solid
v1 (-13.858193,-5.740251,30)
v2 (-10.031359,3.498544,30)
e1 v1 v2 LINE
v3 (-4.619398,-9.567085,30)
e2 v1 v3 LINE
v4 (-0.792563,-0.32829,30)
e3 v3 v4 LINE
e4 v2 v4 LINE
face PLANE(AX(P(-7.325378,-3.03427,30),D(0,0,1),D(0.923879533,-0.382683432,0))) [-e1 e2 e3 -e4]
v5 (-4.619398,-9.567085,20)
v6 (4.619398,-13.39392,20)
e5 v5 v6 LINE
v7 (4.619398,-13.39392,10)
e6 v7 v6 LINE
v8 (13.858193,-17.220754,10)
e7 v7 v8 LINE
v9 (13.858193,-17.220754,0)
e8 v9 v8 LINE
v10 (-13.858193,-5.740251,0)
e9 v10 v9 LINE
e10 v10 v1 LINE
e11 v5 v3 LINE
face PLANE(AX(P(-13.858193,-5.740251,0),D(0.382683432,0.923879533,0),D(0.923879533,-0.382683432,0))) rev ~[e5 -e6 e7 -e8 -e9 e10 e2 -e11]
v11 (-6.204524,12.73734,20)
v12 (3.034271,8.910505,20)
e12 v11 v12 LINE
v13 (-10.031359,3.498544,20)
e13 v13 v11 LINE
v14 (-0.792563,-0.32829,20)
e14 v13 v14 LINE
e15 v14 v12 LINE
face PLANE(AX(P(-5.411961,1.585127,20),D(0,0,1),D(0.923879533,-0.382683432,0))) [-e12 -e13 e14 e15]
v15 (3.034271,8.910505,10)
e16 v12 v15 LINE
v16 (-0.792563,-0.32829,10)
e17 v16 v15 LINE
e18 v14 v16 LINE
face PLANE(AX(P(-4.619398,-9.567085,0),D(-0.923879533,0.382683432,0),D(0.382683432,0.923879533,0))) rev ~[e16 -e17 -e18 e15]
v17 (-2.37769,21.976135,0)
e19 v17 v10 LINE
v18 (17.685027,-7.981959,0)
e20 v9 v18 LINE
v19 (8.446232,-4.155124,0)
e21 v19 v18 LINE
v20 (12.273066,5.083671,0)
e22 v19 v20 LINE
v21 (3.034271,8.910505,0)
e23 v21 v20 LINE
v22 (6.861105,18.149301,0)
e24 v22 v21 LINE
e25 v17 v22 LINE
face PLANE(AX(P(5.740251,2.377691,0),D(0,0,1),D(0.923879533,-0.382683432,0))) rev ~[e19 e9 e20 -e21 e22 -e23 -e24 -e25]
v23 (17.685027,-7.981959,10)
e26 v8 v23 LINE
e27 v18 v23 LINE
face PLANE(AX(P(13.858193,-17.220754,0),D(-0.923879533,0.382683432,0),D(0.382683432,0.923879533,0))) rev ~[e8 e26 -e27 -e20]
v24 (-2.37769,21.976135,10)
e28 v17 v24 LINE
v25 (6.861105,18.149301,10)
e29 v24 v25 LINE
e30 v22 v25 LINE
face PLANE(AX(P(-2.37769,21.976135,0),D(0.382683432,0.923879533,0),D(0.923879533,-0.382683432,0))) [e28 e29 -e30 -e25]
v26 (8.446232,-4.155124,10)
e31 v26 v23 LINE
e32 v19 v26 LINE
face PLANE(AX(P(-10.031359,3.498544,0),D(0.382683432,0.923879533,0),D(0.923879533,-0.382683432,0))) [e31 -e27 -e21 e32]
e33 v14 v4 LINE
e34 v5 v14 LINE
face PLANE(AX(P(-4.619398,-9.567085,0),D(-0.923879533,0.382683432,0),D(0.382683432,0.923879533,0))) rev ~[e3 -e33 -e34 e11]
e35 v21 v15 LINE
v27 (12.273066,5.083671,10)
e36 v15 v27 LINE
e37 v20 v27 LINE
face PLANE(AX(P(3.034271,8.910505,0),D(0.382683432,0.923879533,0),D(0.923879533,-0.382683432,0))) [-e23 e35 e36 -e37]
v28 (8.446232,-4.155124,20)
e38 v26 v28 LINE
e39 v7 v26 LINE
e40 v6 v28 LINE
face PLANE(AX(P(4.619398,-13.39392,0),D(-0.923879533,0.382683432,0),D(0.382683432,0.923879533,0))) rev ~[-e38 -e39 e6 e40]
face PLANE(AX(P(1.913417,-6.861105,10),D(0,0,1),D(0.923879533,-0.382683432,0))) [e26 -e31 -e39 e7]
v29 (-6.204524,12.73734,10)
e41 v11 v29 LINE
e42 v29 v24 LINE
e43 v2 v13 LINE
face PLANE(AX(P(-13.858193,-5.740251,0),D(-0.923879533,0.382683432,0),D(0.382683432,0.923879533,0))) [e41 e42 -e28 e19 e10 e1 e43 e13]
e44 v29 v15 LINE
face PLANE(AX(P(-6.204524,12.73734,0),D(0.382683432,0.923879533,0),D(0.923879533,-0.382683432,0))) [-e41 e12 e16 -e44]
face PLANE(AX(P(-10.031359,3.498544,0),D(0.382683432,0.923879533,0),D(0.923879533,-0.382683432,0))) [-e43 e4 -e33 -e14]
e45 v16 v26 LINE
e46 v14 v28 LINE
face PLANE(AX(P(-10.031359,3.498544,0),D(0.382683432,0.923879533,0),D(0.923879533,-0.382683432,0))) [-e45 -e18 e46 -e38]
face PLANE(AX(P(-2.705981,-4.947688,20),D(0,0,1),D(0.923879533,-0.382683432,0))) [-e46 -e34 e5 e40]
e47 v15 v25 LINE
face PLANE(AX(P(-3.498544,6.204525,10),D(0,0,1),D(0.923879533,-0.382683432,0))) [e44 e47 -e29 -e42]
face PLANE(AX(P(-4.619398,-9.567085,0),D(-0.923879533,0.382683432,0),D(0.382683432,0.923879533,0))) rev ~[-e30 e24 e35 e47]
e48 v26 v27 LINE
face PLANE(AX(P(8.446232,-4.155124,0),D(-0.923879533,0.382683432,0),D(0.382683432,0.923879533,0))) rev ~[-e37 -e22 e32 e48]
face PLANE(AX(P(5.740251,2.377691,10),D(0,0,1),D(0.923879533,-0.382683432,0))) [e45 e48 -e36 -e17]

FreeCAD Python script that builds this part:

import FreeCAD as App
import Part
import Sketcher


def add_polygon(sketch, points):
    """Adds a closed chain of lines whose ends are joined by coincident constraints."""
    first, n = sketch.GeometryCount, len(points)
    for a, b in zip(points, points[1:] + points[:1]):
        sketch.addGeometry(Part.LineSegment(App.Vector(*a, 0), App.Vector(*b, 0)), False)
    for i in range(n):
        sketch.addConstraint(Sketcher.Constraint("Coincident", first + i, 2, first + (i + 1) % n, 1))

doc = App.newDocument("Part")
params = doc.addObject("Spreadsheet::Sheet", "Params")
for row, (alias, value) in enumerate([
    ("sketch1_width", "20 mm"),
    ("sketch1_height", "10 mm"),
    ("pad1_length", "20 mm"),
    ("sketch2_width", "10 mm"),
    ("sketch2_height", "20 mm"),
    ("pad2_length", "10 mm"),
    ("sketch3_width", "10 mm"),
    ("pad3_length", "10 mm"),
    ("sketch4_width", "30 mm"),
    ("sketch4_height", "10 mm"),
    ("pad4_length", "10 mm"),
    ("sketch5_width", "10 mm"),
    ("sketch5_height", "20 mm"),
    ("pad5_length", "20 mm"),
    ("sketch6_width", "10 mm"),
    ("sketch6_height", "30 mm"),
    ("pad6_length", "10 mm"),
    ("sketch7_width", "10 mm"),
    ("pad7_length", "10 mm"),
    ("sketch8_width", "10 mm"),
    ("pad8_length", "30 mm"),
], start=1):
    params.set(f"A{row}", alias)
    params.set(f"B{row}", "=" + value)
    params.setAlias(f"B{row}", alias)

body = doc.addObject("PartDesign::Body", "Body")

sketch1 = doc.addObject("Sketcher::SketchObject", "Sketch")
body.addObject(sketch1)
sketch1.AttachmentSupport = (doc.XY_Plane, [""])
sketch1.MapMode = "FlatFace"
add_polygon(sketch1, [(0, 10), (0, 0), (20, 0), (20, 10)])
sketch1.addConstraint(Sketcher.Constraint("Vertical", 0))
sketch1.addConstraint(Sketcher.Constraint("Horizontal", 1))
sketch1.addConstraint(Sketcher.Constraint("Vertical", 2))
sketch1.addConstraint(Sketcher.Constraint("Horizontal", 3))
sketch1.addConstraint(Sketcher.Constraint("Coincident", 0, 2, -1, 1))
sketch1.addConstraint(Sketcher.Constraint("DistanceX", 1, 1, 1, 2, 20.0))
sketch1.addConstraint(Sketcher.Constraint("DistanceY", 0, 2, 0, 1, 10.0))
sketch1.setExpression("Constraints[9]", "Params.sketch1_width")
sketch1.setExpression("Constraints[10]", "Params.sketch1_height")
pad1 = doc.addObject("PartDesign::Pad", "Pad")
body.addObject(pad1)
pad1.Profile = sketch1
pad1.setExpression("Length", "Params.pad1_length")
body2 = doc.addObject("PartDesign::Body", "Body001")

sketch2 = doc.addObject("Sketcher::SketchObject", "Sketch001")
body2.addObject(sketch2)
sketch2.AttachmentSupport = (doc.getObject("XY_Plane001"), [""])
sketch2.MapMode = "FlatFace"
add_polygon(sketch2, [(0, 20), (0, 0), (10, 0), (10, 20)])
sketch2.addConstraint(Sketcher.Constraint("Vertical", 0))
sketch2.addConstraint(Sketcher.Constraint("Horizontal", 1))
sketch2.addConstraint(Sketcher.Constraint("Vertical", 2))
sketch2.addConstraint(Sketcher.Constraint("Horizontal", 3))
sketch2.addConstraint(Sketcher.Constraint("Coincident", 0, 2, -1, 1))
sketch2.addConstraint(Sketcher.Constraint("DistanceX", 1, 1, 1, 2, 10.0))
sketch2.addConstraint(Sketcher.Constraint("DistanceY", 0, 2, 0, 1, 20.0))
sketch2.setExpression("Constraints[9]", "Params.sketch2_width")
sketch2.setExpression("Constraints[10]", "Params.sketch2_height")
pad2 = doc.addObject("PartDesign::Pad", "Pad001")
body2.addObject(pad2)
pad2.Profile = sketch2
pad2.setExpression("Length", "Params.pad2_length")
body3 = doc.addObject("PartDesign::Body", "Body002")

sketch3 = doc.addObject("Sketcher::SketchObject", "Sketch002")
body3.addObject(sketch3)
sketch3.AttachmentSupport = (doc.getObject("XY_Plane002"), [""])
sketch3.MapMode = "FlatFace"
add_polygon(sketch3, [(0, 10), (0, 0), (10, 0), (10, 10)])
sketch3.addConstraint(Sketcher.Constraint("Vertical", 0))
sketch3.addConstraint(Sketcher.Constraint("Horizontal", 1))
sketch3.addConstraint(Sketcher.Constraint("Vertical", 2))
sketch3.addConstraint(Sketcher.Constraint("Horizontal", 3))
sketch3.addConstraint(Sketcher.Constraint("Coincident", 0, 2, -1, 1))
sketch3.addConstraint(Sketcher.Constraint("Equal", 3, 0))
sketch3.addConstraint(Sketcher.Constraint("DistanceX", 1, 1, 1, 2, 10.0))
sketch3.setExpression("Constraints[10]", "Params.sketch3_width")
pad3 = doc.addObject("PartDesign::Pad", "Pad002")
body3.addObject(pad3)
pad3.Profile = sketch3
pad3.setExpression("Length", "Params.pad3_length")
body4 = doc.addObject("PartDesign::Body", "Body003")

sketch4 = doc.addObject("Sketcher::SketchObject", "Sketch003")
body4.addObject(sketch4)
sketch4.AttachmentSupport = (doc.getObject("XY_Plane003"), [""])
sketch4.MapMode = "FlatFace"
add_polygon(sketch4, [(0, 10), (0, 0), (30, 0), (30, 10)])
sketch4.addConstraint(Sketcher.Constraint("Vertical", 0))
sketch4.addConstraint(Sketcher.Constraint("Horizontal", 1))
sketch4.addConstraint(Sketcher.Constraint("Vertical", 2))
sketch4.addConstraint(Sketcher.Constraint("Horizontal", 3))
sketch4.addConstraint(Sketcher.Constraint("Coincident", 0, 2, -1, 1))
sketch4.addConstraint(Sketcher.Constraint("DistanceX", 1, 1, 1, 2, 30.0))
sketch4.addConstraint(Sketcher.Constraint("DistanceY", 0, 2, 0, 1, 10.0))
sketch4.setExpression("Constraints[9]", "Params.sketch4_width")
sketch4.setExpression("Constraints[10]", "Params.sketch4_height")
pad4 = doc.addObject("PartDesign::Pad", "Pad003")
body4.addObject(pad4)
pad4.Profile = sketch4
pad4.setExpression("Length", "Params.pad4_length")
body5 = doc.addObject("PartDesign::Body", "Body004")

sketch5 = doc.addObject("Sketcher::SketchObject", "Sketch004")
body5.addObject(sketch5)
sketch5.AttachmentSupport = (doc.getObject("XY_Plane004"), [""])
sketch5.MapMode = "FlatFace"
add_polygon(sketch5, [(0, 20), (0, 0), (10, 0), (10, 20)])
sketch5.addConstraint(Sketcher.Constraint("Vertical", 0))
sketch5.addConstraint(Sketcher.Constraint("Horizontal", 1))
sketch5.addConstraint(Sketcher.Constraint("Vertical", 2))
sketch5.addConstraint(Sketcher.Constraint("Horizontal", 3))
sketch5.addConstraint(Sketcher.Constraint("Coincident", 0, 2, -1, 1))
sketch5.addConstraint(Sketcher.Constraint("DistanceX", 1, 1, 1, 2, 10.0))
sketch5.addConstraint(Sketcher.Constraint("DistanceY", 0, 2, 0, 1, 20.0))
sketch5.setExpression("Constraints[9]", "Params.sketch5_width")
sketch5.setExpression("Constraints[10]", "Params.sketch5_height")
pad5 = doc.addObject("PartDesign::Pad", "Pad004")
body5.addObject(pad5)
pad5.Profile = sketch5
pad5.setExpression("Length", "Params.pad5_length")
body6 = doc.addObject("PartDesign::Body", "Body005")

sketch6 = doc.addObject("Sketcher::SketchObject", "Sketch005")
body6.addObject(sketch6)
sketch6.AttachmentSupport = (doc.getObject("XY_Plane005"), [""])
sketch6.MapMode = "FlatFace"
add_polygon(sketch6, [(0, 30), (0, 0), (10, 0), (10, 30)])
sketch6.addConstraint(Sketcher.Constraint("Vertical", 0))
sketch6.addConstraint(Sketcher.Constraint("Horizontal", 1))
sketch6.addConstraint(Sketcher.Constraint("Vertical", 2))
sketch6.addConstraint(Sketcher.Constraint("Horizontal", 3))
sketch6.addConstraint(Sketcher.Constraint("Coincident", 0, 2, -1, 1))
sketch6.addConstraint(Sketcher.Constraint("DistanceX", 1, 1, 1, 2, 10.0))
sketch6.addConstraint(Sketcher.Constraint("DistanceY", 0, 2, 0, 1, 30.0))
sketch6.setExpression("Constraints[9]", "Params.sketch6_width")
sketch6.setExpression("Constraints[10]", "Params.sketch6_height")
pad6 = doc.addObject("PartDesign::Pad", "Pad005")
body6.addObject(pad6)
pad6.Profile = sketch6
pad6.setExpression("Length", "Params.pad6_length")
body7 = doc.addObject("PartDesign::Body", "Body006")

sketch7 = doc.addObject("Sketcher::SketchObject", "Sketch006")
body7.addObject(sketch7)
sketch7.AttachmentSupport = (doc.getObject("XY_Plane006"), [""])
sketch7.MapMode = "FlatFace"
add_polygon(sketch7, [(10, 20), (10, 10), (20, 10), (20, 20)])
sketch7.addConstraint(Sketcher.Constraint("Vertical", 0))
sketch7.addConstraint(Sketcher.Constraint("Horizontal", 1))
sketch7.addConstraint(Sketcher.Constraint("Vertical", 2))
sketch7.addConstraint(Sketcher.Constraint("Horizontal", 3))
sketch7.addConstraint(Sketcher.Constraint("Equal", 3, 0))
sketch7.addConstraint(Sketcher.Constraint("DistanceX", 1, 1, 1, 2, 10.0))
sketch7.addConstraint(Sketcher.Constraint("DistanceX", -1, 1, 0, 2, 10.0))
sketch7.addConstraint(Sketcher.Constraint("DistanceY", -1, 1, 0, 2, 10.0))
sketch7.setExpression("Constraints[9]", "Params.sketch7_width")
pad7 = doc.addObject("PartDesign::Pad", "Pad006")
body7.addObject(pad7)
pad7.Profile = sketch7
pad7.setExpression("Length", "Params.pad7_length")
body8 = doc.addObject("PartDesign::Body", "Body007")

sketch8 = doc.addObject("Sketcher::SketchObject", "Sketch007")
body8.addObject(sketch8)
sketch8.AttachmentSupport = (doc.getObject("XY_Plane007"), [""])
sketch8.MapMode = "FlatFace"
add_polygon(sketch8, [(0, 10), (0, 0), (10, 0), (10, 10)])
sketch8.addConstraint(Sketcher.Constraint("Vertical", 0))
sketch8.addConstraint(Sketcher.Constraint("Horizontal", 1))
sketch8.addConstraint(Sketcher.Constraint("Vertical", 2))
sketch8.addConstraint(Sketcher.Constraint("Horizontal", 3))
sketch8.addConstraint(Sketcher.Constraint("Coincident", 0, 2, -1, 1))
sketch8.addConstraint(Sketcher.Constraint("Equal", 3, 0))
sketch8.addConstraint(Sketcher.Constraint("DistanceX", 1, 1, 1, 2, 10.0))
sketch8.setExpression("Constraints[10]", "Params.sketch8_width")
pad8 = doc.addObject("PartDesign::Pad", "Pad007")
body8.addObject(pad8)
pad8.Profile = sketch8
pad8.setExpression("Length", "Params.pad8_length")
doc.recompute()

boolean = doc.addObject("PartDesign::Boolean", "Boolean")
body8.addObject(boolean)
boolean.Type = "Fuse"
boolean.addObjects([body])
doc.recompute()

boolean2 = doc.addObject("PartDesign::Boolean", "Boolean001")
body8.addObject(boolean2)
boolean2.Type = "Fuse"
boolean2.addObjects([body2])
doc.recompute()

boolean3 = doc.addObject("PartDesign::Boolean", "Boolean002")
body8.addObject(boolean3)
boolean3.Type = "Fuse"
boolean3.addObjects([body3])
doc.recompute()

boolean4 = doc.addObject("PartDesign::Boolean", "Boolean003")
body8.addObject(boolean4)
boolean4.Type = "Fuse"
boolean4.addObjects([body4])
doc.recompute()

boolean5 = doc.addObject("PartDesign::Boolean", "Boolean004")
body8.addObject(boolean5)
boolean5.Type = "Fuse"
boolean5.addObjects([body5])
doc.recompute()

boolean6 = doc.addObject("PartDesign::Boolean", "Boolean005")
body8.addObject(boolean6)
boolean6.Type = "Fuse"
boolean6.addObjects([body6])
doc.recompute()

boolean7 = doc.addObject("PartDesign::Boolean", "Boolean006")
body8.addObject(boolean7)
boolean7.Type = "Fuse"
boolean7.addObjects([body7])
body9 = doc.addObject("PartDesign::Body", "Body008")
doc.recompute()

body8.Placement = App.Placement(App.Vector(-13.858193, -5.740251, 0), App.Rotation(App.Vector(0, 0, 1), 337.5))
boolean8 = doc.addObject("PartDesign::Boolean", "Boolean007")
body9.addObject(boolean8)
boolean8.Type = "Fuse"
boolean8.addObjects([body8])

doc.recompute()
